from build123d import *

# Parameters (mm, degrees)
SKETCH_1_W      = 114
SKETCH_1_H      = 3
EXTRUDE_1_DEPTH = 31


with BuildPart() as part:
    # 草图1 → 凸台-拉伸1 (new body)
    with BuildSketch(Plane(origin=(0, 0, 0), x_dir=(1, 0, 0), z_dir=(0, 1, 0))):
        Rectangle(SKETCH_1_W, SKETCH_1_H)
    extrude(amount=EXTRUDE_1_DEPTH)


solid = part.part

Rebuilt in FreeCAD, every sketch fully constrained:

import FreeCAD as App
import Part
import Sketcher
from FreeCAD import Vector
Q = App.Units.Quantity


def add_polygon(sketch, points):
    """Adds a closed chain of lines whose ends are joined by coincident constraints."""
    first, n = sketch.GeometryCount, len(points)
    for a, b in zip(points, points[1:] + points[:1]):
        sketch.addGeometry(Part.LineSegment(App.Vector(*a, 0), App.Vector(*b, 0)), False)
    for i in range(n):
        sketch.addConstraint(Sketcher.Constraint("Coincident", first + i, 2, first + (i + 1) % n, 1))

doc = App.newDocument("Part")
params = doc.addObject("Spreadsheet::Sheet", "Params")
for row, (alias, value) in enumerate([
    ("sketch1_width", "114 mm"),
    ("sketch1_height", "3 mm"),
    ("pad1_length", "31 mm"),
], start=1):
    params.set(f"A{row}", alias)
    params.set(f"B{row}", "=" + value)
    params.setAlias(f"B{row}", alias)

body = doc.addObject("PartDesign::Body", "Body")

# Sketch on XZ plane
sketch1 = body.newObject("Sketcher::SketchObject", "Sketch")
sketch1.AttachmentSupport = (doc.getObject("XZ_Plane"), [""])
sketch1.MapMode = "FlatFace"
add_polygon(sketch1, [(-57, -1.5), (-57, 1.5), (57, 1.5), (57, -1.5)])  # lines 0-3
sketch1.addConstraint(Sketcher.Constraint("Vertical", 0))
sketch1.addConstraint(Sketcher.Constraint("Horizontal", 1))
sketch1.addConstraint(Sketcher.Constraint("Vertical", 2))
sketch1.addConstraint(Sketcher.Constraint("Horizontal", 3))
sketch1.addConstraint(Sketcher.Constraint("Symmetric", 0, 2, 2, 2, -1, 1))
sketch1.addConstraint(Sketcher.Constraint("DistanceX", 1, 1, 1, 2, Q("114 mm")))
sketch1.addConstraint(Sketcher.Constraint("DistanceY", 0, 1, 0, 2, Q("3 mm")))
sketch1.setExpression("Constraints[9]", "Params.sketch1_width")
sketch1.setExpression("Constraints[10]", "Params.sketch1_height")
pad1 = body.newObject("PartDesign::Pad", "Pad")
pad1.Profile = sketch1
pad1.setExpression("Length", "Params.pad1_length")
pad1.Reversed = True

doc.recompute()
